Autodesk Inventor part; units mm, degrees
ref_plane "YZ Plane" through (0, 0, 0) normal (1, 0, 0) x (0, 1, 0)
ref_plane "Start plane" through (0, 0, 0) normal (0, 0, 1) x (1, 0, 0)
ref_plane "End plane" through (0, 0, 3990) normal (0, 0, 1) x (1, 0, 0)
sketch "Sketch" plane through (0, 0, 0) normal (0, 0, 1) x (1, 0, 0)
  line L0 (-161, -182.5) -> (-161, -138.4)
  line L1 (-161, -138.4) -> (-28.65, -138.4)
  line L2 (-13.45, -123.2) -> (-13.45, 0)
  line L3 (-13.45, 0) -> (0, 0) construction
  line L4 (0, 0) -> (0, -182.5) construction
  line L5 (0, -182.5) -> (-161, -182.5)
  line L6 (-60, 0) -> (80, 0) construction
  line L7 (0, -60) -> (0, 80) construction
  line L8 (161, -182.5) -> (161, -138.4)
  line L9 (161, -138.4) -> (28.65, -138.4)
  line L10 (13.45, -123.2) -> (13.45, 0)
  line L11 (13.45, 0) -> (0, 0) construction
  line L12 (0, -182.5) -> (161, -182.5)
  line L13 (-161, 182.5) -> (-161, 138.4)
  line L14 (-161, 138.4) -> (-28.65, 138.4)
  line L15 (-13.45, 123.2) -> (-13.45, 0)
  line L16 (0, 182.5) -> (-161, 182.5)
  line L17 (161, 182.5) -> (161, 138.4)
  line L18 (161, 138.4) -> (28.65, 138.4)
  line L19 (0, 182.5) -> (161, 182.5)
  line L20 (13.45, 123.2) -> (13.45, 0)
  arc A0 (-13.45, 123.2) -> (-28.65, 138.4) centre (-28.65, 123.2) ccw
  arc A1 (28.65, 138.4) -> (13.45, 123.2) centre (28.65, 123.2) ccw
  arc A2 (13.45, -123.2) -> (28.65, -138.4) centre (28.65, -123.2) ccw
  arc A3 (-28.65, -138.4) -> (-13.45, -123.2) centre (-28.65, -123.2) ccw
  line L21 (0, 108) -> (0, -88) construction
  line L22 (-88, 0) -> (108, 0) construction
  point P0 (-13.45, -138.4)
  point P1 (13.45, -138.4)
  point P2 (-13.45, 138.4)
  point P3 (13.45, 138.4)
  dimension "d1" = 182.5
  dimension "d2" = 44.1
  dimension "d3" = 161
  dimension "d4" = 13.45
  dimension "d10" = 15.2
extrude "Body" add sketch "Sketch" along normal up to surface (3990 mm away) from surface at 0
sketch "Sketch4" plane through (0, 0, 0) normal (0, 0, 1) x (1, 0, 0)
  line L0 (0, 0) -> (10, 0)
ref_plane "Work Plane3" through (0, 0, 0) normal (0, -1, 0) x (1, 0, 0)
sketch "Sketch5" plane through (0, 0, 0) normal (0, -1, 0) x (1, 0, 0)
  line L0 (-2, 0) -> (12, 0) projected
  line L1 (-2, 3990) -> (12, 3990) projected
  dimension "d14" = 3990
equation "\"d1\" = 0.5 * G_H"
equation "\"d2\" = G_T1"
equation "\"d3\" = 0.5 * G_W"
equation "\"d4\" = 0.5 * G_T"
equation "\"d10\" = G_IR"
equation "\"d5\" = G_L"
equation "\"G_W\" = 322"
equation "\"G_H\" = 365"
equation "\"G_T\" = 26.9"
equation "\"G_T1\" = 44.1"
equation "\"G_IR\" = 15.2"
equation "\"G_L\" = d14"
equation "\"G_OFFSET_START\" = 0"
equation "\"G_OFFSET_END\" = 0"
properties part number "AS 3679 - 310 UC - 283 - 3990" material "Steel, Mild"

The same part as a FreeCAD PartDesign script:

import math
import FreeCAD as App
import Part
import Sketcher

doc = App.newDocument("Part")
params = doc.addObject("Spreadsheet::Sheet", "Params")
for row, (alias, value) in enumerate([
    ("sketch1_radius", "15.2 mm"),
    ("sketch1_height", "44.1 mm"),
    ("pad1_length", "3990 mm"),
], start=1):
    params.set(f"A{row}", alias)
    params.set(f"B{row}", "=" + value)
    params.setAlias(f"B{row}", alias)

body = doc.addObject("PartDesign::Body", "Body")

# Sketch on XY plane
sketch1 = body.newObject("Sketcher::SketchObject", "Sketch")
sketch1.AttachmentSupport = (doc.getObject("XY_Plane"), [""])
sketch1.MapMode = "FlatFace"
sketch1.addGeometry([
    Part.LineSegment(App.Vector(-161, -138, 0), App.Vector(-161, -182, 0)),  # 0
    Part.LineSegment(App.Vector(-161, -182, 0), App.Vector(161, -182, 0)),  # 1
    Part.LineSegment(App.Vector(161, -182, 0), App.Vector(161, -138, 0)),  # 2
    Part.LineSegment(App.Vector(161, -138, 0), App.Vector(29, -138, 0)),  # 3
    Part.ArcOfCircle(Part.Circle(App.Vector(29, -123, 0), App.Vector(0, 0, 1), 15), math.radians(180), math.radians(270)),  # 4
    Part.LineSegment(App.Vector(13, -123, 0), App.Vector(13, 123, 0)),  # 5
    Part.ArcOfCircle(Part.Circle(App.Vector(29, 123, 0), App.Vector(0, 0, 1), 15), math.radians(90), math.radians(180)),  # 6
    Part.LineSegment(App.Vector(29, 138, 0), App.Vector(161, 138, 0)),  # 7
    Part.LineSegment(App.Vector(161, 138, 0), App.Vector(161, 182, 0)),  # 8
    Part.LineSegment(App.Vector(161, 182, 0), App.Vector(-161, 182, 0)),  # 9
    Part.LineSegment(App.Vector(-161, 182, 0), App.Vector(-161, 138, 0)),  # 10
    Part.LineSegment(App.Vector(-161, 138, 0), App.Vector(-29, 138, 0)),  # 11
    Part.ArcOfCircle(Part.Circle(App.Vector(-29, 123, 0), App.Vector(0, 0, 1), 15), math.radians(0), math.radians(90)),  # 12
    Part.LineSegment(App.Vector(-13, 123, 0), App.Vector(-13, -123, 0)),  # 13
    Part.ArcOfCircle(Part.Circle(App.Vector(-29, -123, 0), App.Vector(0, 0, 1), 15), math.radians(-90), math.radians(0)),  # 14
    Part.LineSegment(App.Vector(-29, -138, 0), App.Vector(-161, -138, 0)),  # 15
], False)
sketch1.addConstraint([
    Sketcher.Constraint("Coincident", 0, 2, 1, 1),
    Sketcher.Constraint("Coincident", 1, 2, 2, 1),
    Sketcher.Constraint("Coincident", 2, 2, 3, 1),
    Sketcher.Constraint("Tangent", 3, 2, 4, 2),
    Sketcher.Constraint("Tangent", 4, 1, 5, 1),
    Sketcher.Constraint("Tangent", 5, 2, 6, 2),
    Sketcher.Constraint("Tangent", 6, 1, 7, 1),
    Sketcher.Constraint("Coincident", 7, 2, 8, 1),
    Sketcher.Constraint("Coincident", 8, 2, 9, 1),
    Sketcher.Constraint("Coincident", 9, 2, 10, 1),
    Sketcher.Constraint("Coincident", 10, 2, 11, 1),
    Sketcher.Constraint("Tangent", 11, 2, 12, 2),
    Sketcher.Constraint("Tangent", 12, 1, 13, 1),
    Sketcher.Constraint("Tangent", 13, 2, 14, 2),
    Sketcher.Constraint("Tangent", 14, 1, 15, 1),
    Sketcher.Constraint("Coincident", 15, 2, 0, 1),
    Sketcher.Constraint("Vertical", 0),
    Sketcher.Constraint("Horizontal", 1),
    Sketcher.Constraint("Vertical", 2),
    Sketcher.Constraint("Horizontal", 3),
    Sketcher.Constraint("Vertical", 5),
    Sketcher.Constraint("Horizontal", 7),
    Sketcher.Constraint("Vertical", 8),
    Sketcher.Constraint("Horizontal", 9),
    Sketcher.Constraint("Vertical", 10),
    Sketcher.Constraint("Horizontal", 11),
    Sketcher.Constraint("Vertical", 13),
    Sketcher.Constraint("Horizontal", 15),
    Sketcher.Constraint("Equal", 4, 6),
    Sketcher.Constraint("Equal", 6, 12),
    Sketcher.Constraint("Equal", 12, 14),
    Sketcher.Constraint("Symmetric", 4, 3, 12, 3, -1, 1),
    Sketcher.Constraint("Symmetric", 0, 2, 8, 2, -1, 1),
    Sketcher.Constraint("Symmetric", 7, 2, 10, 2, -2),
    Sketcher.Constraint("Symmetric", 2, 2, 15, 2, -2),
    Sketcher.Constraint("Radius", 4, 15.2),
    Sketcher.Constraint("DistanceY", 0, 2, 0, 1, 44.1),
    Sketcher.Constraint("DistanceX", 0, 2, -1, 1, 161.0),
    Sketcher.Constraint("DistanceY", 0, 2, -1, 1, 182.5),
    Sketcher.Constraint("DistanceX", -1, 1, 4, 1, 13.45),
])
sketch1.setExpression("Constraints[35]", "Params.sketch1_radius")
sketch1.setExpression("Constraints[36]", "Params.sketch1_height")
pad1 = body.newObject("PartDesign::Pad", "Pad")
pad1.Profile = sketch1
pad1.setExpression("Length", "Params.pad1_length")

doc.recompute()
